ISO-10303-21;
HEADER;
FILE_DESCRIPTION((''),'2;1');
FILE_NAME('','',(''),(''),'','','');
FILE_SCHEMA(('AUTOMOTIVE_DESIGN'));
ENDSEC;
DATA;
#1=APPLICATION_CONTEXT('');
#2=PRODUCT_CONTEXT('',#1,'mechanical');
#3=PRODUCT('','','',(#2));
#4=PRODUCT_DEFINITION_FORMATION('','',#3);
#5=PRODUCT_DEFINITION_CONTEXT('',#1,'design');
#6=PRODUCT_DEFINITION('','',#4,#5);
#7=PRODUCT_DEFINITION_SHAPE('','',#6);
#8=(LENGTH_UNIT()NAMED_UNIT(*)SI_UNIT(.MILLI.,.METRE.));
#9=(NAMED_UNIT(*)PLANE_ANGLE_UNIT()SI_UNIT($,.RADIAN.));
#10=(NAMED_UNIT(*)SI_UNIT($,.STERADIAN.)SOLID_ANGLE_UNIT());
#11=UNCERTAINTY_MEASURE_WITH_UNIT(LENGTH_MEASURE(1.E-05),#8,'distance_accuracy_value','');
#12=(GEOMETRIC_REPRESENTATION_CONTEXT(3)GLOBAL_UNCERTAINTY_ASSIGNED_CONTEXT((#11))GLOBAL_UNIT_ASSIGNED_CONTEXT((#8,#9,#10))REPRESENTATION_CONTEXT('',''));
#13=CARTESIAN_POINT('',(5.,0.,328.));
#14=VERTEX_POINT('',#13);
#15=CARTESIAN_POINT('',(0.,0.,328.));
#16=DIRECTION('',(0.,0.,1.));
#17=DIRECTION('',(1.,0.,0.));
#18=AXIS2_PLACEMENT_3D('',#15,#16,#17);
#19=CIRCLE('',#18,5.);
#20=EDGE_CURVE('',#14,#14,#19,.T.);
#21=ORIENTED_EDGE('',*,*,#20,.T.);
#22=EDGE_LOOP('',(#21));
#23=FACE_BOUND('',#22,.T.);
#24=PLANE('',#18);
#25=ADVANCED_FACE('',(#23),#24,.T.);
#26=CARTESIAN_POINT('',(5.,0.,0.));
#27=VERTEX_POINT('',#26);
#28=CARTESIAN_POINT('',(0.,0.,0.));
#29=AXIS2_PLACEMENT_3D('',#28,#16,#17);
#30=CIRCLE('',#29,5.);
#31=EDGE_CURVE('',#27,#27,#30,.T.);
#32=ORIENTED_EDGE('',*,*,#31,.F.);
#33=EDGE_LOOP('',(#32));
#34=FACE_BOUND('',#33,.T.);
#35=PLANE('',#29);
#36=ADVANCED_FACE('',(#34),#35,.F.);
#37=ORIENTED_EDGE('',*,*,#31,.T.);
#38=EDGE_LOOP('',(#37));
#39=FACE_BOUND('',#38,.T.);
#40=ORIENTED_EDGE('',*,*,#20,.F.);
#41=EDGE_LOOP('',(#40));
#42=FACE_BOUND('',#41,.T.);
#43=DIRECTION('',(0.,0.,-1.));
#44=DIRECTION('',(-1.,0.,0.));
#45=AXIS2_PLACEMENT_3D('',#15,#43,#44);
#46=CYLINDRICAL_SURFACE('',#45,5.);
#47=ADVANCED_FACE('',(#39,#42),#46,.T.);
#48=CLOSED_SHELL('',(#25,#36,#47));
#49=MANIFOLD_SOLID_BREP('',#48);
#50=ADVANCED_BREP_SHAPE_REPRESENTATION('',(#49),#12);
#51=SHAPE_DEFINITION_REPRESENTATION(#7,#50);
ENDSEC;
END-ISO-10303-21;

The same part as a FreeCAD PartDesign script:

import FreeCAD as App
import Part
import Sketcher
from FreeCAD import Vector
Q = App.Units.Quantity

doc = App.newDocument("Part")
body = doc.addObject("PartDesign::Body", "Body")

# Sketch on XY plane
sketch1 = body.newObject("Sketcher::SketchObject", "Sketch")
sketch1.AttachmentSupport = (doc.getObject("XY_Plane"), [""])
sketch1.MapMode = "FlatFace"
sketch1.addGeometry(Part.Circle(Vector(0, 0, 0), Vector(0, 0, 1), 5), False)
sketch1.addConstraint(Sketcher.Constraint("Coincident", 0, 3, -1, 1))
sketch1.addConstraint(Sketcher.Constraint("Diameter", 0, Q("10 mm")))
pad1 = body.newObject("PartDesign::Pad", "Pad")
pad1.Profile = sketch1
pad1.Length = 328

doc.recompute()
